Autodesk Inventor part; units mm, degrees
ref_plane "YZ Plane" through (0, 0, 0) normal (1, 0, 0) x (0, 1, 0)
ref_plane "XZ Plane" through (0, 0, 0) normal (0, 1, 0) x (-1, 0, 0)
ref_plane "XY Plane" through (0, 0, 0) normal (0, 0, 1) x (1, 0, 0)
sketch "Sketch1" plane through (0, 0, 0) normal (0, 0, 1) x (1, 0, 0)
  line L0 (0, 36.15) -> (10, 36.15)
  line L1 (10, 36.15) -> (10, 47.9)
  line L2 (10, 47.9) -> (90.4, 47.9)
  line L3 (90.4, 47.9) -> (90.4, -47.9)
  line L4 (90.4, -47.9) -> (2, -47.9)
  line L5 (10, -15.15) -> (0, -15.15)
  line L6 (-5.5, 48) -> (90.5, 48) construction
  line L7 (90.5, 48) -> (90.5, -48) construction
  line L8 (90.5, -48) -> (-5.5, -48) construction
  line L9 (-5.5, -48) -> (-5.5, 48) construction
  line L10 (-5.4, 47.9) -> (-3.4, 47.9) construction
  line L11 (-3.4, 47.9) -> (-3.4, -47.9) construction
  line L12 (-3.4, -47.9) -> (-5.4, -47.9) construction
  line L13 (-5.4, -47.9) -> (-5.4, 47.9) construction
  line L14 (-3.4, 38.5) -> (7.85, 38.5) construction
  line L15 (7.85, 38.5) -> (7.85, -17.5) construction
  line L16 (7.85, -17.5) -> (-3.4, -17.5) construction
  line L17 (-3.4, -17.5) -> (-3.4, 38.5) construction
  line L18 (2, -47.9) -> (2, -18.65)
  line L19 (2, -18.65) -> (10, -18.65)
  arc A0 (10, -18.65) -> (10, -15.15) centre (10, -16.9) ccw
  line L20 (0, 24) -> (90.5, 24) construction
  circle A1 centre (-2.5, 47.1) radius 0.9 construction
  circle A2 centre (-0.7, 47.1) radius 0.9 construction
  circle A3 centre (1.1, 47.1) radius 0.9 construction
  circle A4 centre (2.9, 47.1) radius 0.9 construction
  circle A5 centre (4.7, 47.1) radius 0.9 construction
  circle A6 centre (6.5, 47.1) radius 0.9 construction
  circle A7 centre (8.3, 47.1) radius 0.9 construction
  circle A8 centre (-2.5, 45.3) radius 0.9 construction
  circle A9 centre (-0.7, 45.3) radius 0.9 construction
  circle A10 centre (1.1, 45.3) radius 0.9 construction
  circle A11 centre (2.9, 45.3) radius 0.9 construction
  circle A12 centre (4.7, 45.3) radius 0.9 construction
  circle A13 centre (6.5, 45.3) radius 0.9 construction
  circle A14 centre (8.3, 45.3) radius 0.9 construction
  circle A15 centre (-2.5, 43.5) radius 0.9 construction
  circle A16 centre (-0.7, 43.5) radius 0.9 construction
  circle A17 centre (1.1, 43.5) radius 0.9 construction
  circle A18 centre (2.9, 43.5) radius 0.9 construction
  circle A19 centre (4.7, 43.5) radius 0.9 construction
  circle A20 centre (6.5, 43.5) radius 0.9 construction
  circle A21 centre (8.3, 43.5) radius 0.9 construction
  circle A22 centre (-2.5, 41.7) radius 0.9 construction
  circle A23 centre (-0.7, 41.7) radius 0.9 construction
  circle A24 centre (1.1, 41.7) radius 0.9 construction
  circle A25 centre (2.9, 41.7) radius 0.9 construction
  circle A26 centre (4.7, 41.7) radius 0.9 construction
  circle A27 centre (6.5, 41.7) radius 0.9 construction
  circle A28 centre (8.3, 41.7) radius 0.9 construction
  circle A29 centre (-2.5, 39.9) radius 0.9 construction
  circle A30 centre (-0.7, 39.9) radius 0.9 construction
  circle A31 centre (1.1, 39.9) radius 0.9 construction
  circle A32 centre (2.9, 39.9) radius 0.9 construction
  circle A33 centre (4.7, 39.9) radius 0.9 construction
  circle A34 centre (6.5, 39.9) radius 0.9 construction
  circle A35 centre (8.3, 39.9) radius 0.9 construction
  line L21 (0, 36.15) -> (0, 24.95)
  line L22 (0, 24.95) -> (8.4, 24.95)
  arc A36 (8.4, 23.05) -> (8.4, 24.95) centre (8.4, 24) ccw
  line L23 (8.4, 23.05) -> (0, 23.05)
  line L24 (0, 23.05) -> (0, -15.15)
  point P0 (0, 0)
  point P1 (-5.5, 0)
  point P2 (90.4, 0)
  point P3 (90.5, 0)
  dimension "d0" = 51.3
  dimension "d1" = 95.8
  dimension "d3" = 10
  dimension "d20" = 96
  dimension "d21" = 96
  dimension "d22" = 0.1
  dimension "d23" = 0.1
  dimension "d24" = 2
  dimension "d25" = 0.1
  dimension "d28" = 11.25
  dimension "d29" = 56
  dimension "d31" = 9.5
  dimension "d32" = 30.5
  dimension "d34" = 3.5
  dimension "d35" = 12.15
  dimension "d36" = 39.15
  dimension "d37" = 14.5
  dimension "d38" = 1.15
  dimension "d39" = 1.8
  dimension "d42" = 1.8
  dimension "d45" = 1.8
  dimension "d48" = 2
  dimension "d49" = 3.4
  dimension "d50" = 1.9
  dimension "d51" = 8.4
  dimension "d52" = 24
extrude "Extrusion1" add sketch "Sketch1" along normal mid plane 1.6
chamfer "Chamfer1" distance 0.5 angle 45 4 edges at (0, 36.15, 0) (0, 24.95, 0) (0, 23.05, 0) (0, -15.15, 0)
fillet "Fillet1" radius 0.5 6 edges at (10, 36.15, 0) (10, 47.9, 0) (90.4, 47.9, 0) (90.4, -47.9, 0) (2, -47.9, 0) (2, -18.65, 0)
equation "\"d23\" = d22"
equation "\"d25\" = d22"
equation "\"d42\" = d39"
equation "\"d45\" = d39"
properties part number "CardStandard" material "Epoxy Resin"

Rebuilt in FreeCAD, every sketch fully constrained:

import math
import FreeCAD as App
import Part
import Sketcher


def edges_at(feature, points):
    """Names of the edges that pass closest to the given points."""
    edges = feature.Shape.Edges
    near = lambda p: min(range(len(edges)), key=lambda i: edges[i].distToShape(Part.Vertex(*p))[0])
    return sorted({f"Edge{near(p) + 1}" for p in points})

doc = App.newDocument("Part")
body = doc.addObject("PartDesign::Body", "Body")

# Sketch on XY plane
sketch1 = doc.addObject("Sketcher::SketchObject", "Sketch")
body.addObject(sketch1)
sketch1.AttachmentSupport = (doc.XY_Plane, [""])
sketch1.MapMode = "FlatFace"
sketch1.addGeometry(Part.LineSegment(App.Vector(10, 36.15, 0), App.Vector(0, 36.15, 0)), False)
sketch1.addGeometry(Part.LineSegment(App.Vector(0, 36.15, 0), App.Vector(0, 24.95, 0)), False)
sketch1.addGeometry(Part.LineSegment(App.Vector(0, 24.95, 0), App.Vector(8.4, 24.95, 0)), False)
sketch1.addGeometry(Part.ArcOfCircle(Part.Circle(App.Vector(8.4, 24, 0), App.Vector(0, 0, 1), 0.95), math.radians(-90), math.radians(90)), False)
sketch1.addGeometry(Part.LineSegment(App.Vector(8.4, 23.05, 0), App.Vector(0, 23.05, 0)), False)
sketch1.addGeometry(Part.LineSegment(App.Vector(0, 23.05, 0), App.Vector(0, -15.15, 0)), False)
sketch1.addGeometry(Part.LineSegment(App.Vector(0, -15.15, 0), App.Vector(10, -15.15, 0)), False)
sketch1.addGeometry(Part.ArcOfCircle(Part.Circle(App.Vector(10, -16.9, 0), App.Vector(0, 0, 1), 1.75), math.radians(-90), math.radians(90)), False)
sketch1.addGeometry(Part.LineSegment(App.Vector(10, -18.65, 0), App.Vector(2, -18.65, 0)), False)
sketch1.addGeometry(Part.LineSegment(App.Vector(2, -18.65, 0), App.Vector(2, -47.9, 0)), False)
sketch1.addGeometry(Part.LineSegment(App.Vector(2, -47.9, 0), App.Vector(90.4, -47.9, 0)), False)
sketch1.addGeometry(Part.LineSegment(App.Vector(90.4, -47.9, 0), App.Vector(90.4, 47.9, 0)), False)
sketch1.addGeometry(Part.LineSegment(App.Vector(90.4, 47.9, 0), App.Vector(10, 47.9, 0)), False)
sketch1.addGeometry(Part.LineSegment(App.Vector(10, 47.9, 0), App.Vector(10, 36.15, 0)), False)
sketch1.addConstraint(Sketcher.Constraint("Coincident", 0, 2, 1, 1))
sketch1.addConstraint(Sketcher.Constraint("Coincident", 1, 2, 2, 1))
sketch1.addConstraint(Sketcher.Constraint("Tangent", 2, 2, 3, 2))
sketch1.addConstraint(Sketcher.Constraint("Tangent", 3, 1, 4, 1))
sketch1.addConstraint(Sketcher.Constraint("Coincident", 4, 2, 5, 1))
sketch1.addConstraint(Sketcher.Constraint("Coincident", 5, 2, 6, 1))
sketch1.addConstraint(Sketcher.Constraint("Tangent", 6, 2, 7, 2))
sketch1.addConstraint(Sketcher.Constraint("Tangent", 7, 1, 8, 1))
sketch1.addConstraint(Sketcher.Constraint("Coincident", 8, 2, 9, 1))
sketch1.addConstraint(Sketcher.Constraint("Coincident", 9, 2, 10, 1))
sketch1.addConstraint(Sketcher.Constraint("Coincident", 10, 2, 11, 1))
sketch1.addConstraint(Sketcher.Constraint("Coincident", 11, 2, 12, 1))
sketch1.addConstraint(Sketcher.Constraint("Coincident", 12, 2, 13, 1))
sketch1.addConstraint(Sketcher.Constraint("Coincident", 13, 2, 0, 1))
sketch1.addConstraint(Sketcher.Constraint("Horizontal", 0))
sketch1.addConstraint(Sketcher.Constraint("Vertical", 1))
sketch1.addConstraint(Sketcher.Constraint("Horizontal", 2))
sketch1.addConstraint(Sketcher.Constraint("Horizontal", 4))
sketch1.addConstraint(Sketcher.Constraint("Vertical", 5))
sketch1.addConstraint(Sketcher.Constraint("Horizontal", 6))
sketch1.addConstraint(Sketcher.Constraint("Horizontal", 8))
sketch1.addConstraint(Sketcher.Constraint("Vertical", 9))
sketch1.addConstraint(Sketcher.Constraint("Horizontal", 10))
sketch1.addConstraint(Sketcher.Constraint("Vertical", 11))
sketch1.addConstraint(Sketcher.Constraint("Horizontal", 12))
sketch1.addConstraint(Sketcher.Constraint("Vertical", 13))
sketch1.addConstraint(Sketcher.Constraint("PointOnObject", 0, 2, -2))
sketch1.addConstraint(Sketcher.Constraint("PointOnObject", 4, 2, -2))
sketch1.addConstraint(Sketcher.Constraint("Vertical", 7, 1, 12, 2))
sketch1.addConstraint(Sketcher.Constraint("DistanceX", 0, 2, 0, 1, 10.0))
sketch1.addConstraint(Sketcher.Constraint("Radius", 3, 0.95))
sketch1.addConstraint(Sketcher.Constraint("Radius", 7, 1.75))
sketch1.addConstraint(Sketcher.Constraint("DistanceX", 2, 1, 2, 2, 8.4))
sketch1.addConstraint(Sketcher.Constraint("DistanceY", 11, 1, 11, 2, 95.8))
sketch1.addConstraint(Sketcher.Constraint("DistanceY", -1, 1, 3, 3, 24.0))
sketch1.addConstraint(Sketcher.Constraint("DistanceX", -1, 1, 8, 2, 2.0))
sketch1.addConstraint(Sketcher.Constraint("DistanceY", 3, 3, 0, 2, 12.15))
sketch1.addConstraint(Sketcher.Constraint("DistanceY", 5, 2, 3, 3, 39.15))
sketch1.addConstraint(Sketcher.Constraint("DistanceX", 10, 1, 10, 2, 88.4))
sketch1.addConstraint(Sketcher.Constraint("DistanceY", 9, 2, 7, 3, 31.0))
pad1 = doc.addObject("PartDesign::Pad", "Pad")
body.addObject(pad1)
pad1.Profile = sketch1
pad1.Length = 1.6
pad1.Midplane = True
doc.recompute()

chamfer = doc.addObject("PartDesign::Chamfer", "Chamfer")
body.addObject(chamfer)
chamfer.Base = (pad1, edges_at(pad1, [
    (0, 36.15, 0),
    (0, 24.95, 0),
    (0, 23.05, 0),
    (0, -15.15, 0),
]))
chamfer.Size = 0.5
doc.recompute()

fillet = doc.addObject("PartDesign::Fillet", "Fillet")
body.addObject(fillet)
fillet.Base = (chamfer, edges_at(chamfer, [
    (10, 36.15, 0),
    (10, 47.9, 0),
    (90.4, 47.9, 0),
    (90.4, -47.9, 0),
    (2, -47.9, 0),
    (2, -18.65, 0),
]))
fillet.Radius = 0.5

doc.recompute()
